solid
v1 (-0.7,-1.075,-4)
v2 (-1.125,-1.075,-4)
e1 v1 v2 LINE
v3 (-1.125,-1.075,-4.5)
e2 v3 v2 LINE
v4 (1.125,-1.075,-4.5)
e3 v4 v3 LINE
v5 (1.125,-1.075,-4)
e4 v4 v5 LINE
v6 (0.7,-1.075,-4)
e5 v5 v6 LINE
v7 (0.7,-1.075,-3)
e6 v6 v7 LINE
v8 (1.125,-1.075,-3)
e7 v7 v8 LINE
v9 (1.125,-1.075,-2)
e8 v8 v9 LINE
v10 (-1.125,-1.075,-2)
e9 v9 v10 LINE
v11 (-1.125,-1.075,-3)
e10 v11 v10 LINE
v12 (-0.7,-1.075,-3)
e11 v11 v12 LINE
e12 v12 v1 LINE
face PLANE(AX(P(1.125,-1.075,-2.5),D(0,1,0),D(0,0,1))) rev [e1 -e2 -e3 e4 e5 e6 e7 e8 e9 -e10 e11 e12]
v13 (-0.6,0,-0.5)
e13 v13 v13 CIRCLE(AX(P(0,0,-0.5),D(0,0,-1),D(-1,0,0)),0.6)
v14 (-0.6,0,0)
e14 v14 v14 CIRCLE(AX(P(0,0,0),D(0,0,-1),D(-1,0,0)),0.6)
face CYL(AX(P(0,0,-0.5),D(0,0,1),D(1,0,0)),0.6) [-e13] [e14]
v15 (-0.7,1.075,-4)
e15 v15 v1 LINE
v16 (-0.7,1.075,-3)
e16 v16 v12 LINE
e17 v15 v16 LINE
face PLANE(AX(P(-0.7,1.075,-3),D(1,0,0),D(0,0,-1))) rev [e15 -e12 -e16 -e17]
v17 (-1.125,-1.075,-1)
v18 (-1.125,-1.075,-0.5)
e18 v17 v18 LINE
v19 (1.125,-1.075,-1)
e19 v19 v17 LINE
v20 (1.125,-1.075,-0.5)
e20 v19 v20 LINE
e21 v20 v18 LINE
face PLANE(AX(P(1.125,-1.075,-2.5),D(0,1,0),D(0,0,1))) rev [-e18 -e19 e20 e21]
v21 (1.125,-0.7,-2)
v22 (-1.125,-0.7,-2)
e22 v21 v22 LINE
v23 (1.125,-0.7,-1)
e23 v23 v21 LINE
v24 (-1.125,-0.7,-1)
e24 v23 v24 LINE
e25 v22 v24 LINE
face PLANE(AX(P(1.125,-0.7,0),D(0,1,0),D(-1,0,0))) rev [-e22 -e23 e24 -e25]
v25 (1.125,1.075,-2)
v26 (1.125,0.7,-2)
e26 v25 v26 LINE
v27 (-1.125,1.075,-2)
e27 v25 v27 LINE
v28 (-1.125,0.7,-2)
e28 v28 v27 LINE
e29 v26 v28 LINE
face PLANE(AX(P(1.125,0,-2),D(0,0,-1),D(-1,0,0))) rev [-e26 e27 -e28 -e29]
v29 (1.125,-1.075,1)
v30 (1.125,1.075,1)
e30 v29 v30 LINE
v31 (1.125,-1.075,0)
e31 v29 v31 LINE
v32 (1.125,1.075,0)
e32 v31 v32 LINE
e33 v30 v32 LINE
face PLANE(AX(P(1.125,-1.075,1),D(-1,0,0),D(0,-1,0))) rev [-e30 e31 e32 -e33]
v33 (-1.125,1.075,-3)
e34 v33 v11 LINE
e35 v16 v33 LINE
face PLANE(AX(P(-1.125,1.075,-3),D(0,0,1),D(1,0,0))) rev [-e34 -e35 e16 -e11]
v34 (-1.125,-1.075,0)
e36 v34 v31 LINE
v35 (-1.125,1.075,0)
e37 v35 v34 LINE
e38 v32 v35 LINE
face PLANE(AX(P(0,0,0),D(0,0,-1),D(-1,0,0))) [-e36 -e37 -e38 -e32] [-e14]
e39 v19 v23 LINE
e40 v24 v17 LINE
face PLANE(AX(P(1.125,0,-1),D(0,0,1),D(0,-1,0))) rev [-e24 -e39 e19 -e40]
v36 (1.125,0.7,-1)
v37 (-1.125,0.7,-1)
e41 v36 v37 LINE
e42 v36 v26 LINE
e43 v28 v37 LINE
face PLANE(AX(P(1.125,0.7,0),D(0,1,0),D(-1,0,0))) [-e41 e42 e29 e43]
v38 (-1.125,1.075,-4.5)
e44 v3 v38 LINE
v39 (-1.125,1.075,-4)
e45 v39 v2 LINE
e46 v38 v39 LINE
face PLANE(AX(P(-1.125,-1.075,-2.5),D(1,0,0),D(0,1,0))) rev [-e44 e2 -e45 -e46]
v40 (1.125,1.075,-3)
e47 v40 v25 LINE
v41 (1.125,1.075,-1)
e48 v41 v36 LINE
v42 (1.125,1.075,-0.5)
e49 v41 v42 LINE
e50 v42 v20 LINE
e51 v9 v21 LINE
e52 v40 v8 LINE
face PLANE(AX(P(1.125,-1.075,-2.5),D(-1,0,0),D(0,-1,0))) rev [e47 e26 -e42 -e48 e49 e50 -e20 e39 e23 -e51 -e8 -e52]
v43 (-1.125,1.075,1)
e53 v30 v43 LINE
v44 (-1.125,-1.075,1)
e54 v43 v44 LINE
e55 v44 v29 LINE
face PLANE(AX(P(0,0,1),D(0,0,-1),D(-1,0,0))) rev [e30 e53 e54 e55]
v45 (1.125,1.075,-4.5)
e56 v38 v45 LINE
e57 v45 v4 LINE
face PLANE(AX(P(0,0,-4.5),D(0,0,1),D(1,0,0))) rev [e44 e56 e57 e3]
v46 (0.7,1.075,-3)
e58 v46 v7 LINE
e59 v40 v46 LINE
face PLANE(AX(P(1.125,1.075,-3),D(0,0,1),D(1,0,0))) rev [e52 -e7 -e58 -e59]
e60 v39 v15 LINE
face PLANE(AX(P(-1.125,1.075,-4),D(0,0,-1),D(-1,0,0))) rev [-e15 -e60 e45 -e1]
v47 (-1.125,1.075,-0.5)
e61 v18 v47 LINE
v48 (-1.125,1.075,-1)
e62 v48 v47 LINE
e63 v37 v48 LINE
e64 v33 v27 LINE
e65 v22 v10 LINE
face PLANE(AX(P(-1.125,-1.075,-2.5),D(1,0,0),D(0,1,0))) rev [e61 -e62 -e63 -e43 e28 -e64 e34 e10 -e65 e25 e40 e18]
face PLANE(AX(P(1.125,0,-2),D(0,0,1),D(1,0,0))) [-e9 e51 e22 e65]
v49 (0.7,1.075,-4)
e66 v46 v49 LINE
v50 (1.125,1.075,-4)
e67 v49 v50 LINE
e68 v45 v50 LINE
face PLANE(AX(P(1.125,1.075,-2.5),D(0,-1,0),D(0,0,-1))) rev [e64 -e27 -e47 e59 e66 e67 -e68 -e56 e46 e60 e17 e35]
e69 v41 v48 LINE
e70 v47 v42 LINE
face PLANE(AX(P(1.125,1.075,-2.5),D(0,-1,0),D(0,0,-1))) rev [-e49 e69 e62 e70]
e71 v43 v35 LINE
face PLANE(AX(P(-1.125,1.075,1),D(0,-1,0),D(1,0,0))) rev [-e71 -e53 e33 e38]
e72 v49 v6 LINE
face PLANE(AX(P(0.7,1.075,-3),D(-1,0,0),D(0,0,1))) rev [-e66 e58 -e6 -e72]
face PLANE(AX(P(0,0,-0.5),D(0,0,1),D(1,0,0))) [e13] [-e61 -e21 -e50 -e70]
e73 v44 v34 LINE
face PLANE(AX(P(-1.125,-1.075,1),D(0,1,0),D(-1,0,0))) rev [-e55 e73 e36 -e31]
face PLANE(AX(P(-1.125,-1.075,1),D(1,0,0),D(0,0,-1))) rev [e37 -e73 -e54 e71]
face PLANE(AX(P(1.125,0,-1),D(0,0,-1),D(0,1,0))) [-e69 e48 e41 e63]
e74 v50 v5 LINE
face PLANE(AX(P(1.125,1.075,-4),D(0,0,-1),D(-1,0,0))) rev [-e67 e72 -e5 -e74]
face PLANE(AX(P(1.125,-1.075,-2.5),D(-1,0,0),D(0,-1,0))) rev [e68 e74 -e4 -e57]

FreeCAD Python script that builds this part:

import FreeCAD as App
import Part
import Sketcher
from FreeCAD import Vector
Q = App.Units.Quantity

doc = App.newDocument("Part")
params = doc.addObject("Spreadsheet::Sheet", "Params")
for row, (alias, value) in enumerate([
    ("sketch1_width", "2.25 mm"),
    ("sketch1_height", "2.15 mm"),
    ("pad1_length", "1 mm"),
    ("sketch2_diameter", "1.2 mm"),
    ("pad2_length", "0.5 mm"),
    ("sketch3_width", "2.25 mm"),
    ("sketch3_height", "2.15 mm"),
    ("pad3_length", "2 mm"),
    ("sketch4_height", "1 mm"),
    ("sketch5_width", "2.25 mm"),
    ("sketch5_height", "2.15 mm"),
    ("pad4_length", "2 mm"),
    ("sketch6_height", "1 mm"),
], start=1):
    params.set(f"A{row}", alias)
    params.set(f"B{row}", "=" + value)
    params.setAlias(f"B{row}", alias)

body = doc.addObject("PartDesign::Body", "Body")

sketch1 = body.newObject("Sketcher::SketchObject", "Sketch")
sketch1.AttachmentSupport = (doc.getObject("XY_Plane"), [""])
sketch1.MapMode = "FlatFace"
sketch1.addGeometry(Part.LineSegment(Vector(-1.1, 1.1, 0), Vector(-1.1, -1.1, 0)), False)
sketch1.addGeometry(Part.LineSegment(Vector(-1.1, -1.1, 0), Vector(1.1, -1.1, 0)), False)
sketch1.addGeometry(Part.LineSegment(Vector(1.1, -1.1, 0), Vector(1.1, 1.1, 0)), False)
sketch1.addGeometry(Part.LineSegment(Vector(1.1, 1.1, 0), Vector(-1.1, 1.1, 0)), False)
sketch1.addConstraint(Sketcher.Constraint("Coincident", 0, 2, 1, 1))
sketch1.addConstraint(Sketcher.Constraint("Coincident", 1, 2, 2, 1))
sketch1.addConstraint(Sketcher.Constraint("Coincident", 2, 2, 3, 1))
sketch1.addConstraint(Sketcher.Constraint("Coincident", 3, 2, 0, 1))
sketch1.addConstraint(Sketcher.Constraint("Vertical", 0))
sketch1.addConstraint(Sketcher.Constraint("Horizontal", 1))
sketch1.addConstraint(Sketcher.Constraint("Vertical", 2))
sketch1.addConstraint(Sketcher.Constraint("Horizontal", 3))
sketch1.addConstraint(Sketcher.Constraint("Symmetric", 0, 2, 2, 2, -1, 1))
sketch1.addConstraint(Sketcher.Constraint("DistanceX", 1, 1, 1, 2, Q("2.25 mm")))
sketch1.addConstraint(Sketcher.Constraint("DistanceY", 0, 2, 0, 1, Q("2.15 mm")))
sketch1.setExpression("Constraints[9]", "Params.sketch1_width")
sketch1.setExpression("Constraints[10]", "Params.sketch1_height")
pad1 = body.newObject("PartDesign::Pad", "Pad")
pad1.Profile = sketch1
pad1.setExpression("Length", "Params.pad1_length")

sketch2 = body.newObject("Sketcher::SketchObject", "Sketch001")
sketch2.AttachmentSupport = (doc.getObject("XY_Plane"), [""])
sketch2.MapMode = "FlatFace"
sketch2.addGeometry(Part.Circle(Vector(0, 0, 0), Vector(0, 0, 1), 0.6), False)
sketch2.addConstraint(Sketcher.Constraint("Coincident", 0, 3, -1, 1))
sketch2.addConstraint(Sketcher.Constraint("Diameter", 0, Q("1.2 mm")))
sketch2.setExpression("Constraints[1]", "Params.sketch2_diameter")
pad2 = body.newObject("PartDesign::Pad", "Pad001")
pad2.Profile = sketch2
pad2.setExpression("Length", "Params.pad2_length")
pad2.Reversed = True

sketch3 = body.newObject("Sketcher::SketchObject", "Sketch002")
sketch3.AttachmentSupport = (doc.getObject("XY_Plane"), [""])
sketch3.MapMode = "FlatFace"
sketch3.AttachmentOffset = App.Placement(Vector(0, 0, -0.5), App.Rotation())
sketch3.addGeometry(Part.LineSegment(Vector(1.1, 1.1, 0), Vector(1.1, -1.1, 0)), False)
sketch3.addGeometry(Part.LineSegment(Vector(1.1, -1.1, 0), Vector(-1.1, -1.1, 0)), False)
sketch3.addGeometry(Part.LineSegment(Vector(-1.1, -1.1, 0), Vector(-1.1, 1.1, 0)), False)
sketch3.addGeometry(Part.LineSegment(Vector(-1.1, 1.1, 0), Vector(1.1, 1.1, 0)), False)
sketch3.addConstraint(Sketcher.Constraint("Coincident", 0, 2, 1, 1))
sketch3.addConstraint(Sketcher.Constraint("Coincident", 1, 2, 2, 1))
sketch3.addConstraint(Sketcher.Constraint("Coincident", 2, 2, 3, 1))
sketch3.addConstraint(Sketcher.Constraint("Coincident", 3, 2, 0, 1))
sketch3.addConstraint(Sketcher.Constraint("Vertical", 0))
sketch3.addConstraint(Sketcher.Constraint("Horizontal", 1))
sketch3.addConstraint(Sketcher.Constraint("Vertical", 2))
sketch3.addConstraint(Sketcher.Constraint("Horizontal", 3))
sketch3.addConstraint(Sketcher.Constraint("Symmetric", 0, 2, 2, 2, -1, 1))
sketch3.addConstraint(Sketcher.Constraint("DistanceX", 1, 2, 1, 1, Q("2.25 mm")))
sketch3.addConstraint(Sketcher.Constraint("DistanceY", 0, 2, 0, 1, Q("2.15 mm")))
sketch3.setExpression("Constraints[9]", "Params.sketch3_width")
sketch3.setExpression("Constraints[10]", "Params.sketch3_height")
pad3 = body.newObject("PartDesign::Pad", "Pad002")
pad3.Profile = sketch3
pad3.setExpression("Length", "Params.pad3_length")
pad3.Reversed = True

sketch4 = body.newObject("Sketcher::SketchObject", "Sketch003")
sketch4.AttachmentSupport = (doc.getObject("YZ_Plane"), [""])
sketch4.MapMode = "FlatFace"
sketch4.AttachmentOffset = App.Placement(Vector(0, 0, -1.125), App.Rotation())
sketch4.addGeometry(Part.LineSegment(Vector(-0.7, -2, 0), Vector(-1.07, -2, 0)), False)
sketch4.addGeometry(Part.LineSegment(Vector(-1.07, -2, 0), Vector(-1.07, -1, 0)), False)
sketch4.addGeometry(Part.LineSegment(Vector(-1.07, -1, 0), Vector(-0.7, -1, 0)), False)
sketch4.addGeometry(Part.LineSegment(Vector(-0.7, -1, 0), Vector(-0.7, -2, 0)), False)
sketch4.addGeometry(Part.LineSegment(Vector(1.07, -2, 0), Vector(0.7, -2, 0)), False)
sketch4.addGeometry(Part.LineSegment(Vector(0.7, -2, 0), Vector(0.7, -1, 0)), False)
sketch4.addGeometry(Part.LineSegment(Vector(0.7, -1, 0), Vector(1.07, -1, 0)), False)
sketch4.addGeometry(Part.LineSegment(Vector(1.07, -1, 0), Vector(1.07, -2, 0)), False)
sketch4.addConstraint(Sketcher.Constraint("Coincident", 0, 2, 1, 1))
sketch4.addConstraint(Sketcher.Constraint("Coincident", 1, 2, 2, 1))
sketch4.addConstraint(Sketcher.Constraint("Coincident", 2, 2, 3, 1))
sketch4.addConstraint(Sketcher.Constraint("Coincident", 3, 2, 0, 1))
sketch4.addConstraint(Sketcher.Constraint("Coincident", 4, 2, 5, 1))
sketch4.addConstraint(Sketcher.Constraint("Coincident", 5, 2, 6, 1))
sketch4.addConstraint(Sketcher.Constraint("Coincident", 6, 2, 7, 1))
sketch4.addConstraint(Sketcher.Constraint("Coincident", 7, 2, 4, 1))
sketch4.addConstraint(Sketcher.Constraint("Horizontal", 0))
sketch4.addConstraint(Sketcher.Constraint("Vertical", 1))
sketch4.addConstraint(Sketcher.Constraint("Horizontal", 2))
sketch4.addConstraint(Sketcher.Constraint("Vertical", 3))
sketch4.addConstraint(Sketcher.Constraint("Horizontal", 4))
sketch4.addConstraint(Sketcher.Constraint("Vertical", 5))
sketch4.addConstraint(Sketcher.Constraint("Horizontal", 6))
sketch4.addConstraint(Sketcher.Constraint("Vertical", 7))
sketch4.addConstraint(Sketcher.Constraint("Symmetric", 3, 2, 4, 2, -2))
sketch4.addConstraint(Sketcher.Constraint("Symmetric", 1, 2, 6, 2, -2))
sketch4.addConstraint(Sketcher.Constraint("DistanceY", 1, 1, 1, 2, Q("1 mm")))
sketch4.addConstraint(Sketcher.Constraint("DistanceY", 0, 2, -1, 1, Q("2 mm")))
sketch4.addConstraint(Sketcher.Constraint("DistanceX", 2, 2, -1, 1, Q("0.7 mm")))
sketch4.addConstraint(Sketcher.Constraint("DistanceX", 0, 2, 0, 1, Q("0.375 mm")))
sketch4.setExpression("Constraints[18]", "Params.sketch4_height")
pocket1 = body.newObject("PartDesign::Pocket", "Pocket")
pocket1.Profile = sketch4
pocket1.Type = "ThroughAll"
pocket1.Midplane = True

sketch5 = body.newObject("Sketcher::SketchObject", "Sketch004")
sketch5.AttachmentSupport = (doc.getObject("XY_Plane"), [""])
sketch5.MapMode = "FlatFace"
sketch5.AttachmentOffset = App.Placement(Vector(0, 0, -2.5), App.Rotation())
sketch5.addGeometry(Part.LineSegment(Vector(1.1, 1.1, 0), Vector(1.1, -1.1, 0)), False)
sketch5.addGeometry(Part.LineSegment(Vector(1.1, -1.1, 0), Vector(-1.1, -1.1, 0)), False)
sketch5.addGeometry(Part.LineSegment(Vector(-1.1, -1.1, 0), Vector(-1.1, 1.1, 0)), False)
sketch5.addGeometry(Part.LineSegment(Vector(-1.1, 1.1, 0), Vector(1.1, 1.1, 0)), False)
sketch5.addConstraint(Sketcher.Constraint("Coincident", 0, 2, 1, 1))
sketch5.addConstraint(Sketcher.Constraint("Coincident", 1, 2, 2, 1))
sketch5.addConstraint(Sketcher.Constraint("Coincident", 2, 2, 3, 1))
sketch5.addConstraint(Sketcher.Constraint("Coincident", 3, 2, 0, 1))
sketch5.addConstraint(Sketcher.Constraint("Vertical", 0))
sketch5.addConstraint(Sketcher.Constraint("Horizontal", 1))
sketch5.addConstraint(Sketcher.Constraint("Vertical", 2))
sketch5.addConstraint(Sketcher.Constraint("Horizontal", 3))
sketch5.addConstraint(Sketcher.Constraint("Symmetric", 0, 2, 2, 2, -1, 1))
sketch5.addConstraint(Sketcher.Constraint("DistanceX", 1, 2, 1, 1, Q("2.25 mm")))
sketch5.addConstraint(Sketcher.Constraint("DistanceY", 0, 2, 0, 1, Q("2.15 mm")))
sketch5.setExpression("Constraints[9]", "Params.sketch5_width")
sketch5.setExpression("Constraints[10]", "Params.sketch5_height")
pad4 = body.newObject("PartDesign::Pad", "Pad003")
pad4.Profile = sketch5
pad4.setExpression("Length", "Params.pad4_length")
pad4.Reversed = True

sketch6 = body.newObject("Sketcher::SketchObject", "Sketch005")
sketch6.AttachmentSupport = (doc.getObject("XZ_Plane"), [""])
sketch6.MapMode = "FlatFace"
sketch6.AttachmentOffset = App.Placement(Vector(0, 0, 1.075), App.Rotation())
sketch6.addGeometry(Part.LineSegment(Vector(-1.12, -3, 0), Vector(-1.12, -4, 0)), False)
sketch6.addGeometry(Part.LineSegment(Vector(-1.12, -4, 0), Vector(-0.7, -4, 0)), False)
sketch6.addGeometry(Part.LineSegment(Vector(-0.7, -4, 0), Vector(-0.7, -3, 0)), False)
sketch6.addGeometry(Part.LineSegment(Vector(-0.7, -3, 0), Vector(-1.12, -3, 0)), False)
sketch6.addGeometry(Part.LineSegment(Vector(0.7, -3, 0), Vector(0.7, -4, 0)), False)
sketch6.addGeometry(Part.LineSegment(Vector(0.7, -4, 0), Vector(1.12, -4, 0)), False)
sketch6.addGeometry(Part.LineSegment(Vector(1.12, -4, 0), Vector(1.12, -3, 0)), False)
sketch6.addGeometry(Part.LineSegment(Vector(1.12, -3, 0), Vector(0.7, -3, 0)), False)
sketch6.addConstraint(Sketcher.Constraint("Coincident", 0, 2, 1, 1))
sketch6.addConstraint(Sketcher.Constraint("Coincident", 1, 2, 2, 1))
sketch6.addConstraint(Sketcher.Constraint("Coincident", 2, 2, 3, 1))
sketch6.addConstraint(Sketcher.Constraint("Coincident", 3, 2, 0, 1))
sketch6.addConstraint(Sketcher.Constraint("Coincident", 4, 2, 5, 1))
sketch6.addConstraint(Sketcher.Constraint("Coincident", 5, 2, 6, 1))
sketch6.addConstraint(Sketcher.Constraint("Coincident", 6, 2, 7, 1))
sketch6.addConstraint(Sketcher.Constraint("Coincident", 7, 2, 4, 1))
sketch6.addConstraint(Sketcher.Constraint("Vertical", 0))
sketch6.addConstraint(Sketcher.Constraint("Horizontal", 1))
sketch6.addConstraint(Sketcher.Constraint("Vertical", 2))
sketch6.addConstraint(Sketcher.Constraint("Horizontal", 3))
sketch6.addConstraint(Sketcher.Constraint("Vertical", 4))
sketch6.addConstraint(Sketcher.Constraint("Horizontal", 5))
sketch6.addConstraint(Sketcher.Constraint("Vertical", 6))
sketch6.addConstraint(Sketcher.Constraint("Horizontal", 7))
sketch6.addConstraint(Sketcher.Constraint("Symmetric", 1, 2, 4, 2, -2))
sketch6.addConstraint(Sketcher.Constraint("Symmetric", 3, 2, 6, 2, -2))
sketch6.addConstraint(Sketcher.Constraint("DistanceY", 0, 2, 0, 1, Q("1 mm")))
sketch6.addConstraint(Sketcher.Constraint("DistanceY", 0, 2, -1, 1, Q("4 mm")))
sketch6.addConstraint(Sketcher.Constraint("DistanceX", 1, 2, -1, 1, Q("0.7 mm")))
sketch6.addConstraint(Sketcher.Constraint("DistanceX", 1, 1, 1, 2, Q("0.425 mm")))
sketch6.setExpression("Constraints[18]", "Params.sketch6_height")
pocket2 = body.newObject("PartDesign::Pocket", "Pocket001")
pocket2.Profile = sketch6
pocket2.Type = "ThroughAll"
pocket2.Midplane = True

doc.recompute()
